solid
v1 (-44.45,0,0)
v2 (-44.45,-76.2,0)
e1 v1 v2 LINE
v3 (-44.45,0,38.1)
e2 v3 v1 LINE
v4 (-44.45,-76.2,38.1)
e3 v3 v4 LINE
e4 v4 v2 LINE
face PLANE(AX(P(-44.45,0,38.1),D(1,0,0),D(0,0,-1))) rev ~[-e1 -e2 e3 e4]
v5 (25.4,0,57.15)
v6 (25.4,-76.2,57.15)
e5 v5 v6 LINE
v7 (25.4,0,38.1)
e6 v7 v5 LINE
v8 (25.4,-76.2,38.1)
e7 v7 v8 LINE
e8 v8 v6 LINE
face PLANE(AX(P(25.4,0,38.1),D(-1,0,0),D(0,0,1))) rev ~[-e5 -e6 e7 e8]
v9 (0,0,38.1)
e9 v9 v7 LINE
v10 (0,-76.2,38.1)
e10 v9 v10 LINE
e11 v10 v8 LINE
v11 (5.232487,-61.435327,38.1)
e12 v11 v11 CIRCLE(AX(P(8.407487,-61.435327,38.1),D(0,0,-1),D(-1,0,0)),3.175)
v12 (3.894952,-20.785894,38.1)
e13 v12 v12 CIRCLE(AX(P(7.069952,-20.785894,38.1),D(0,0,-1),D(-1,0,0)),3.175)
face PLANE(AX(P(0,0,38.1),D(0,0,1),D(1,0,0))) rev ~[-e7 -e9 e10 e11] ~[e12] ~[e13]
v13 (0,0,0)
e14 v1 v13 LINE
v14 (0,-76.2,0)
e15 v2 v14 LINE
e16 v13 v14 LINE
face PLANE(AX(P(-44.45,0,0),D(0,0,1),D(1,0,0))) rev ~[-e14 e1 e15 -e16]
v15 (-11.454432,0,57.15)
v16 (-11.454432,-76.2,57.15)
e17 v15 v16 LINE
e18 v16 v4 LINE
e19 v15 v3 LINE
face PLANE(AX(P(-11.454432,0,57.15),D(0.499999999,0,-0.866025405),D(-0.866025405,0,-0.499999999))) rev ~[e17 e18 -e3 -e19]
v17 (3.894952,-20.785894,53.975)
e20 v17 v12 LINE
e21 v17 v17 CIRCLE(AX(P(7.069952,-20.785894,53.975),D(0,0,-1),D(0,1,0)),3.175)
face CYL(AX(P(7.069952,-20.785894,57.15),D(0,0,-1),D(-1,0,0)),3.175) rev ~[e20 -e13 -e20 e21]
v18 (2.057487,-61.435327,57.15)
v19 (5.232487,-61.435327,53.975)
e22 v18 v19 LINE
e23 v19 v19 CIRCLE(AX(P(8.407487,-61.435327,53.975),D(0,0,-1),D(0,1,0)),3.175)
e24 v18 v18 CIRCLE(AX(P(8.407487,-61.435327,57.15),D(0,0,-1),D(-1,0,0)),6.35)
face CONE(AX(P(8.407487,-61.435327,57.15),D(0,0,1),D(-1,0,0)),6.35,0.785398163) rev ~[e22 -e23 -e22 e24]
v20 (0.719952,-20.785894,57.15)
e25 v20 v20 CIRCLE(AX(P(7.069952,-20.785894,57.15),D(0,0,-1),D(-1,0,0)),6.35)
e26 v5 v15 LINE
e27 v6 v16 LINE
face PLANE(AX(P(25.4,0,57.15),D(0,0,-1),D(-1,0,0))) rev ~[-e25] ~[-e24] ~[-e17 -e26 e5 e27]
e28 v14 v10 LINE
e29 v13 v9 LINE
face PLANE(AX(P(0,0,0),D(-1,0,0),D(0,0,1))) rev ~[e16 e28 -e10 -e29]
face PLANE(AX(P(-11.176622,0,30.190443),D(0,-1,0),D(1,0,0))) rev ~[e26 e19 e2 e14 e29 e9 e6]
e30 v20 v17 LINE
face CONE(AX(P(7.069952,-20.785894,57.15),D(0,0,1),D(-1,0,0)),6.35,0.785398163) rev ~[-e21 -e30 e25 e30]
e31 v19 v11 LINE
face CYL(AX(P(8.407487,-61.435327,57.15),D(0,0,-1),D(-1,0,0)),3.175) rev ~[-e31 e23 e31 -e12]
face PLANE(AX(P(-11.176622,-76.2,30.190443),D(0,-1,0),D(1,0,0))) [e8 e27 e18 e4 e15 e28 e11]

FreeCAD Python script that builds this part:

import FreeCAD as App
import Part
import Sketcher

V = App.Vector
Q = App.Units.Quantity

doc = App.newDocument("Part")
body = doc.addObject("PartDesign::Body", "Body")

sketch1 = doc.addObject("Sketcher::SketchObject", "Sketch")
body.addObject(sketch1)
sketch1.AttachmentSupport = (doc.XZ_Plane, [""])
sketch1.MapMode = "FlatFace"
sketch1.addGeometry([
    Part.LineSegment(V(-44, 0, 0), V(0, 0, 0)),
    Part.LineSegment(V(0, 0, 0), V(0, 38, 0)),
    Part.LineSegment(V(0, 38, 0), V(25, 38, 0)),
    Part.LineSegment(V(25, 38, 0), V(25, 57, 0)),
    Part.LineSegment(V(25, 57, 0), V(-11, 57, 0)),
    Part.LineSegment(V(-11, 57, 0), V(-44, 38, 0)),
    Part.LineSegment(V(-44, 38, 0), V(-44, 0, 0)),
], False)
sketch1.addConstraint([
    Sketcher.Constraint("Coincident", 0, 2, 1, 1),
    Sketcher.Constraint("Coincident", 1, 2, 2, 1),
    Sketcher.Constraint("Coincident", 2, 2, 3, 1),
    Sketcher.Constraint("Coincident", 3, 2, 4, 1),
    Sketcher.Constraint("Coincident", 4, 2, 5, 1),
    Sketcher.Constraint("Coincident", 5, 2, 6, 1),
    Sketcher.Constraint("Coincident", 6, 2, 0, 1),
    Sketcher.Constraint("Horizontal", 0),
    Sketcher.Constraint("Vertical", 1),
    Sketcher.Constraint("Horizontal", 2),
    Sketcher.Constraint("Vertical", 3),
    Sketcher.Constraint("Horizontal", 4),
    Sketcher.Constraint("Vertical", 6),
    Sketcher.Constraint("Coincident", 0, 2, -1, 1),
    Sketcher.Constraint("Horizontal", 2, 2, 5, 2),
    Sketcher.Constraint("DistanceX", 2, 1, 2, 2, Q("1 in")),
    Sketcher.Constraint("DistanceY", 1, 1, 1, 2, Q("1.5 in")),
    Sketcher.Constraint("Angle", 5, Q("-150 deg")),
    Sketcher.Constraint("Distance", 5, Q("1.5 in")),
    Sketcher.Constraint("DistanceX", 0, 1, 0, 2, Q("1.75 in")),
])
pad1 = doc.addObject("PartDesign::Pad", "Pad")
body.addObject(pad1)
pad1.Profile = sketch1
pad1.Length = Q("3 in")

sketch2 = doc.addObject("Sketcher::SketchObject", "Sketch001")
body.addObject(sketch2)
sketch2.AttachmentSupport = (doc.XY_Plane, [""])
sketch2.MapMode = "FlatFace"
sketch2.AttachmentOffset = App.Placement(V(0, 0, 2.25 * 25.4), App.Rotation())
sketch2.addGeometry([
    Part.Circle(V(8.4, -61.4, 0), V(0, 0, 1), 3.2),
    Part.Circle(V(7.1, -20.8, 0), V(0, 0, 1), 3.2),
], False)
sketch2.addConstraint([
    Sketcher.Constraint("Equal", 0, 1),
    Sketcher.Constraint("Diameter", 0, Q("0.25 in")),
    Sketcher.Constraint("DistanceX", -1, 1, 1, 3, Q("7.069952 mm")),
    Sketcher.Constraint("DistanceX", -1, 1, 0, 3, Q("8.407487 mm")),
    Sketcher.Constraint("DistanceY", 0, 3, -1, 1, Q("61.435327 mm")),
    Sketcher.Constraint("DistanceY", 1, 3, -1, 1, Q("20.785894 mm")),
])
doc.recompute()
hole = doc.addObject("PartDesign::Hole", "Hole")
body.addObject(hole)
hole.Profile = sketch2
hole.ThreadType = "None"
hole.Diameter = Q("0.25 in")
hole.DepthType = "ThroughAll"
hole.HoleCutType = "Countersink"
hole.HoleCutDiameter = Q("0.5 in")
hole.HoleCutCountersinkAngle = 90

doc.recompute()
